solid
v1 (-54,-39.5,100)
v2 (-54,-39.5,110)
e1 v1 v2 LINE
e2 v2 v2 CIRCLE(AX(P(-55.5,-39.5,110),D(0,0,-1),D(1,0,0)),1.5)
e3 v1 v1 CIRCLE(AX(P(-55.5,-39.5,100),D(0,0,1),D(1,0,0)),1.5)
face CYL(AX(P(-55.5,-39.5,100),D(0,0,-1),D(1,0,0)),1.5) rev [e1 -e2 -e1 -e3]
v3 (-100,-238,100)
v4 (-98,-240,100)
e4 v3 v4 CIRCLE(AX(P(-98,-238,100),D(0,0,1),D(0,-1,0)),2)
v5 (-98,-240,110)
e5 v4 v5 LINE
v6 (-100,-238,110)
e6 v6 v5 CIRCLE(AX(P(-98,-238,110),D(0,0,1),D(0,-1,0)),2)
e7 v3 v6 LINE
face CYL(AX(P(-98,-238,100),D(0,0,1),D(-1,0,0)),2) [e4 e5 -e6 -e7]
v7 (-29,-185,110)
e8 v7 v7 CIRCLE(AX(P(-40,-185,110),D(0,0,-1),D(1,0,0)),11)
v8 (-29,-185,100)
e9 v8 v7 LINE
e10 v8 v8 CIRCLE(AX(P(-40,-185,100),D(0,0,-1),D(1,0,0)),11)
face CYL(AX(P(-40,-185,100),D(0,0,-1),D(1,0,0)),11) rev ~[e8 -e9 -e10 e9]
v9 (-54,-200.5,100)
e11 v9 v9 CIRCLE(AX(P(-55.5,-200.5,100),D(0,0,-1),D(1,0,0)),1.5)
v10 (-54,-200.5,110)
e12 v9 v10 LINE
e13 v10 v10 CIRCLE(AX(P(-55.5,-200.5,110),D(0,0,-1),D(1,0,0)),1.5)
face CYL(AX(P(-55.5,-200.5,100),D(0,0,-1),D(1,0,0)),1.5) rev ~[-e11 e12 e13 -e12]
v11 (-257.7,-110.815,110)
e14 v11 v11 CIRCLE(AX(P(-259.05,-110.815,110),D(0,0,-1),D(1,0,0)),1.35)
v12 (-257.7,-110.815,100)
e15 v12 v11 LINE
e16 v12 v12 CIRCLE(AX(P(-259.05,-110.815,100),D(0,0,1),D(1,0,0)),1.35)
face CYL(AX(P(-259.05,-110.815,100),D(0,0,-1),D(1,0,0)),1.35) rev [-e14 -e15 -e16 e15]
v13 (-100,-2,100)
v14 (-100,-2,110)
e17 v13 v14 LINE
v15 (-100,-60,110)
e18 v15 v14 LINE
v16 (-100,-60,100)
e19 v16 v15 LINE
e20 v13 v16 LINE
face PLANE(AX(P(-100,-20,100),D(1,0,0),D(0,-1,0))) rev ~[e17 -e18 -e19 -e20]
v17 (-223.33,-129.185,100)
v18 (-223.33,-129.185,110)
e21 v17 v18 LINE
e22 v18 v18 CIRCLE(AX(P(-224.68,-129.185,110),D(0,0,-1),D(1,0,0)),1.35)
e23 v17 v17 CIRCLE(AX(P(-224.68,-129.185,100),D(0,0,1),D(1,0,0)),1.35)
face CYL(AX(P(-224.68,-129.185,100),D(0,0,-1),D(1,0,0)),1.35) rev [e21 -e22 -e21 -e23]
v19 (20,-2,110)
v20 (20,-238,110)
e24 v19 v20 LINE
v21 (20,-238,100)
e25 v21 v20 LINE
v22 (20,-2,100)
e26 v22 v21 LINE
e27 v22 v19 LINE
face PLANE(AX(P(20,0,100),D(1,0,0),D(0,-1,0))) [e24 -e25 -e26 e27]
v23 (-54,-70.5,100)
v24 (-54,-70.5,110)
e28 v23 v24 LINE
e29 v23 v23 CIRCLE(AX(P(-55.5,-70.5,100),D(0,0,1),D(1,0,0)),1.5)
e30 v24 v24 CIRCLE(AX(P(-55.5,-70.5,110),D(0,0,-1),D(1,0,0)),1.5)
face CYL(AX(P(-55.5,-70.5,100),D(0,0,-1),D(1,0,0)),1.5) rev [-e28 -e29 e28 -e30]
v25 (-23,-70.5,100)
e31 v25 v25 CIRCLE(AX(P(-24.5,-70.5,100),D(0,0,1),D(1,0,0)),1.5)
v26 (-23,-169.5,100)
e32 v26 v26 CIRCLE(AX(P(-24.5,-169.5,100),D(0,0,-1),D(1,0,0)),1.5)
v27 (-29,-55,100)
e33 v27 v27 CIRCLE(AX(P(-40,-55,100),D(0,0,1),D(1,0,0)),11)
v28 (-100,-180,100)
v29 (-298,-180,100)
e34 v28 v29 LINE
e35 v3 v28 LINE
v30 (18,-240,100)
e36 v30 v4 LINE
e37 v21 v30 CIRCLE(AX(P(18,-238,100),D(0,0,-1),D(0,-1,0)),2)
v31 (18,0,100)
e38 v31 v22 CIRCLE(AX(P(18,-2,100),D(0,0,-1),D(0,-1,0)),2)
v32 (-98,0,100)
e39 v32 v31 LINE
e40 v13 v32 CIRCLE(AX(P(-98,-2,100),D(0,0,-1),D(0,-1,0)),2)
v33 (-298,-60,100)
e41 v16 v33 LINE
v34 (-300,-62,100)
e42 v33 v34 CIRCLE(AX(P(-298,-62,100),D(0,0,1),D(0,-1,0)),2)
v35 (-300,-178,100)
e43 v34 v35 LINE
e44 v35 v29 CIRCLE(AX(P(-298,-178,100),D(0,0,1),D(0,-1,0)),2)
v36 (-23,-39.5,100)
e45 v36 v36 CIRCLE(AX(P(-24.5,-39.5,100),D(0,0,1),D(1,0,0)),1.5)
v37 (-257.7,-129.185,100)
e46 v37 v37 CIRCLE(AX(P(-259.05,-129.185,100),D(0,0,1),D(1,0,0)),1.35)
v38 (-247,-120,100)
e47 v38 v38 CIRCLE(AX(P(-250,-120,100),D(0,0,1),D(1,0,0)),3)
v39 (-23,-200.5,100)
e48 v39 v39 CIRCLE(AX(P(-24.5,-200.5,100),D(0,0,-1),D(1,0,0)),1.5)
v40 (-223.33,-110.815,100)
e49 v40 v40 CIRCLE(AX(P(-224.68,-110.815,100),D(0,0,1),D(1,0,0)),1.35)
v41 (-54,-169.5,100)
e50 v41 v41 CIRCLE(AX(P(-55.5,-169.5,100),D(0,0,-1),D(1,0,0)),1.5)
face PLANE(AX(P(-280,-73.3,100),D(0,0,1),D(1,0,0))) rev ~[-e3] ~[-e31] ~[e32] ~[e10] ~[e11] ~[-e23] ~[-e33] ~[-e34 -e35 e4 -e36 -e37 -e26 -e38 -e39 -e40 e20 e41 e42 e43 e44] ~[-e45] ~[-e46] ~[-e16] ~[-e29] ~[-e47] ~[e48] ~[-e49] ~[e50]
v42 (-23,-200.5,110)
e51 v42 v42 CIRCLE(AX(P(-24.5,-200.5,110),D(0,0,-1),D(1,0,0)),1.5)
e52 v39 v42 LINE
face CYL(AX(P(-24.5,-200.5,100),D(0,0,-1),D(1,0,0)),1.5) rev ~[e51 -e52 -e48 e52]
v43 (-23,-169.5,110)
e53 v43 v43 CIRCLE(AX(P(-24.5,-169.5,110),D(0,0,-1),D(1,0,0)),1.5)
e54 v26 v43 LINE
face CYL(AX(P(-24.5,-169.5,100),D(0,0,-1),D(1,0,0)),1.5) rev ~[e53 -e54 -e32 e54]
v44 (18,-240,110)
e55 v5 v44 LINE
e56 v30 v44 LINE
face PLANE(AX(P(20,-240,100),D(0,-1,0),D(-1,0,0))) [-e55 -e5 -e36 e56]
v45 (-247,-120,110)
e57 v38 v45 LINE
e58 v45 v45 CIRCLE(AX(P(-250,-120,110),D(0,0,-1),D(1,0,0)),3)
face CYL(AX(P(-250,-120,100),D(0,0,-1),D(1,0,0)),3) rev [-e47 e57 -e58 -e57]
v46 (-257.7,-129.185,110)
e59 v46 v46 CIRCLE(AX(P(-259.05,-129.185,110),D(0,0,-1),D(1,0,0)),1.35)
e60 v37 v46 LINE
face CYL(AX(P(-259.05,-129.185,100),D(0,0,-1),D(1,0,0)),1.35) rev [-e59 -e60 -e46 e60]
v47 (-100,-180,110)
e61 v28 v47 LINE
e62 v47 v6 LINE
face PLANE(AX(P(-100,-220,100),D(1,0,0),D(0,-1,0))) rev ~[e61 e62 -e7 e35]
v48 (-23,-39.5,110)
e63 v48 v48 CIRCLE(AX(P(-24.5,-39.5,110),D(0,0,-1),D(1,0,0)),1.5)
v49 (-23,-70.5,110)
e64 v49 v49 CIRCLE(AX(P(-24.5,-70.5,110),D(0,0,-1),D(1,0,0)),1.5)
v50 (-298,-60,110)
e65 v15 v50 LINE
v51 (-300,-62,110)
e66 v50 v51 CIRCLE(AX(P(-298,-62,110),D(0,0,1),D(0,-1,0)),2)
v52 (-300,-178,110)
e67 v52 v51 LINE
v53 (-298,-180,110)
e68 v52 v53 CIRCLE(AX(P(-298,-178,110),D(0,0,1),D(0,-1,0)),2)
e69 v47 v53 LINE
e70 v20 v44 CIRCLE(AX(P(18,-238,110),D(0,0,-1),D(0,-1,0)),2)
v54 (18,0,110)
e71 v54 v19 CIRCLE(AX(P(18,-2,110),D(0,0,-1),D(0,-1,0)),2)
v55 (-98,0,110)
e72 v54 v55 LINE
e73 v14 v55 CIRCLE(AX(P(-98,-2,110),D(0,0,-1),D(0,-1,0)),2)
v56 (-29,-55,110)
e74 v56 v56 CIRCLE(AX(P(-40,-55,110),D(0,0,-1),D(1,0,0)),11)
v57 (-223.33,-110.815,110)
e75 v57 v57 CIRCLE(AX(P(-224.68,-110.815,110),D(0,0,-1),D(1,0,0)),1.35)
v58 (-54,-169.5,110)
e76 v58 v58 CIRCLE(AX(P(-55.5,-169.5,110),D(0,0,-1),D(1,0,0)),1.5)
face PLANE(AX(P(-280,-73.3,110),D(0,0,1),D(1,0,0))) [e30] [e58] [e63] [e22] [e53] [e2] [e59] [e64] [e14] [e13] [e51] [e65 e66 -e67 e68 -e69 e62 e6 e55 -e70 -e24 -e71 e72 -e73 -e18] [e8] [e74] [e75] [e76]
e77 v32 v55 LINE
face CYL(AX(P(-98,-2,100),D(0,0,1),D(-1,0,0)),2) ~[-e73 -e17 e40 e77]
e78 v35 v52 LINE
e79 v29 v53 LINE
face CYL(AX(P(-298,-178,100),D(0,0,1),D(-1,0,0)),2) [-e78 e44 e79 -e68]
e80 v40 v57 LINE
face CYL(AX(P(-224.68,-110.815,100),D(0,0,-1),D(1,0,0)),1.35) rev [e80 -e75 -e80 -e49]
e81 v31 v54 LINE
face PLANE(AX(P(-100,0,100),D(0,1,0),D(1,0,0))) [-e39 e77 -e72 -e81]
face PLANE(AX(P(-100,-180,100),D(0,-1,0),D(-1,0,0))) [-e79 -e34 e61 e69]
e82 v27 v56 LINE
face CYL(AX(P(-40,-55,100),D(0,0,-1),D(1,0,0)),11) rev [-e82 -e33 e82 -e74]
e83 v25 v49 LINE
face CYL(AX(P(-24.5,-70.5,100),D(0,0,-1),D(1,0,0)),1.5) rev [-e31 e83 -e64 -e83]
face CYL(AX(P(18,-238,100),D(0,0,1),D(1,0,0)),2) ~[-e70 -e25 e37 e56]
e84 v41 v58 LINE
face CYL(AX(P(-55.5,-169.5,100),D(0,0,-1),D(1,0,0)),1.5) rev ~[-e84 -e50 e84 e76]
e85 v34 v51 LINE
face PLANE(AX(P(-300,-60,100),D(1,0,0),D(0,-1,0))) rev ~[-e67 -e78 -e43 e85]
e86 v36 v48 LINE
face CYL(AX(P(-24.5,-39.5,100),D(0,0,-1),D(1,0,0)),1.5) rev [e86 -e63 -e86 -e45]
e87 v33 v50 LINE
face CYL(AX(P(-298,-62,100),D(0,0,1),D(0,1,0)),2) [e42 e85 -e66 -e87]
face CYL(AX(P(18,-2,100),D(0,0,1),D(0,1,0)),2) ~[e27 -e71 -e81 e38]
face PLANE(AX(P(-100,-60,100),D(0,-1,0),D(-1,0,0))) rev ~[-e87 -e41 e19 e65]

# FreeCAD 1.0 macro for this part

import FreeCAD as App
import Part
import Sketcher
from FreeCAD import Vector


def edges_at(feature, points):
    """Names of the edges that pass closest to the given points."""
    edges = feature.Shape.Edges
    near = lambda p: min(range(len(edges)), key=lambda i: edges[i].distToShape(Part.Vertex(*p))[0])
    return sorted({f"Edge{near(p) + 1}" for p in points})

doc = App.newDocument("Part")
body = doc.addObject("PartDesign::Body", "Body")

# Sketch on XY plane
sketch1 = doc.addObject("Sketcher::SketchObject", "Sketch")
body.addObject(sketch1)
sketch1.AttachmentSupport = (doc.XY_Plane, [""])
sketch1.MapMode = "FlatFace"
sketch1.AttachmentOffset = App.Placement(Vector(0, 0, 100), App.Rotation())
sketch1.addGeometry([
    Part.LineSegment(Vector(-100, -60, 0), Vector(-300, -60, 0)),  # 0
    Part.LineSegment(Vector(-300, -60, 0), Vector(-300, -180, 0)),  # 1
    Part.LineSegment(Vector(-300, -180, 0), Vector(-100, -180, 0)),  # 2
    Part.LineSegment(Vector(-100, -180, 0), Vector(-100, -240, 0)),  # 3
    Part.LineSegment(Vector(-100, -240, 0), Vector(20, -240, 0)),  # 4
    Part.LineSegment(Vector(20, -240, 0), Vector(20, 0, 0)),  # 5
    Part.LineSegment(Vector(20, 0, 0), Vector(-100, 0, 0)),  # 6
    Part.LineSegment(Vector(-100, 0, 0), Vector(-100, -60, 0)),  # 7
], False)
sketch1.addConstraint([
    Sketcher.Constraint("Coincident", 0, 2, 1, 1),
    Sketcher.Constraint("Coincident", 1, 2, 2, 1),
    Sketcher.Constraint("Coincident", 2, 2, 3, 1),
    Sketcher.Constraint("Coincident", 3, 2, 4, 1),
    Sketcher.Constraint("Coincident", 4, 2, 5, 1),
    Sketcher.Constraint("Coincident", 5, 2, 6, 1),
    Sketcher.Constraint("Coincident", 6, 2, 7, 1),
    Sketcher.Constraint("Coincident", 7, 2, 0, 1),
    Sketcher.Constraint("Horizontal", 0),
    Sketcher.Constraint("Vertical", 1),
    Sketcher.Constraint("Horizontal", 2),
    Sketcher.Constraint("Vertical", 3),
    Sketcher.Constraint("Horizontal", 4),
    Sketcher.Constraint("Vertical", 5),
    Sketcher.Constraint("Horizontal", 6),
    Sketcher.Constraint("Vertical", 7),
    Sketcher.Constraint("PointOnObject", 5, 2, -1),
    Sketcher.Constraint("Vertical", 3, 2, 6, 2),
    Sketcher.Constraint("Equal", 6, 1),
    Sketcher.Constraint("Equal", 3, 7),
    Sketcher.Constraint("DistanceX", 0, 2, 0, 1, 200.0),
    Sketcher.Constraint("DistanceX", 4, 1, 4, 2, 120.0),
    Sketcher.Constraint("DistanceY", 3, 2, 3, 1, 60.0),
    Sketcher.Constraint("DistanceX", 0, 2, -1, 1, 300.0),
])
pad1 = doc.addObject("PartDesign::Pad", "Pad")
body.addObject(pad1)
pad1.Profile = sketch1
pad1.Length = 10

# Sketch on YZ plane
sketch2 = doc.addObject("Sketcher::SketchObject", "Sketch001")
body.addObject(sketch2)
sketch2.AttachmentSupport = (doc.YZ_Plane, [""])
sketch2.MapMode = "FlatFace"
sketch2.AttachmentOffset = App.Placement(Vector(0, 0, 20), App.Rotation())
sketch2.addGeometry([
    Part.LineSegment(Vector(-242, 0, 0), Vector(2, 0, 0)),
    Part.LineSegment(Vector(2, 0, 0), Vector(2, 100, 0)),
    Part.LineSegment(Vector(2, 100, 0), Vector(-242, 100, 0)),
    Part.LineSegment(Vector(-242, 100, 0), Vector(-242, 0, 0)),
], False)
sketch2.addConstraint([
    Sketcher.Constraint("Coincident", 0, 2, 1, 1),
    Sketcher.Constraint("Coincident", 1, 2, 2, 1),
    Sketcher.Constraint("Coincident", 2, 2, 3, 1),
    Sketcher.Constraint("Coincident", 3, 2, 0, 1),
    Sketcher.Constraint("Horizontal", 0),
    Sketcher.Constraint("Vertical", 1),
    Sketcher.Constraint("Horizontal", 2),
    Sketcher.Constraint("Vertical", 3),
    Sketcher.Constraint("PointOnObject", 0, 2, -1),
    Sketcher.Constraint("DistanceX", 0, 1, 0, 2, 245.0),
    Sketcher.Constraint("DistanceY", 1, 1, 1, 2, 100.0),
    Sketcher.Constraint("DistanceX", -1, 1, 0, 2, 2.5),
])
pocket1 = doc.addObject("PartDesign::Pocket", "Pocket")
body.addObject(pocket1)
pocket1.Profile = sketch2
pocket1.Type = "ThroughAll"

# Sketch on XY plane
sketch3 = doc.addObject("Sketcher::SketchObject", "Sketch002")
body.addObject(sketch3)
sketch3.AttachmentSupport = (doc.XY_Plane, [""])
sketch3.MapMode = "FlatFace"
sketch3.AttachmentOffset = App.Placement(Vector(0, 0, 100), App.Rotation())
sketch3.addGeometry([
    Part.Circle(Vector(-259.1, -110.8, 0), Vector(0, 0, 1), 1.4),  # 0
    Part.Circle(Vector(-224.7, -110.8, 0), Vector(0, 0, 1), 1.4),  # 1
    Part.Circle(Vector(-224.7, -129.2, 0), Vector(0, 0, 1), 1.4),  # 2
    Part.Circle(Vector(-259.1, -129.2, 0), Vector(0, 0, 1), 1.4),  # 3
    Part.Circle(Vector(-250, -120, 0), Vector(0, 0, 1), 3),  # 4
    Part.Circle(Vector(-55.5, -39.5, 0), Vector(0, 0, 1), 1.5),  # 5
    Part.Circle(Vector(-55.5, -70.5, 0), Vector(0, 0, 1), 1.5),  # 6
    Part.Circle(Vector(-24.5, -70.5, 0), Vector(0, 0, 1), 1.5),  # 7
    Part.Circle(Vector(-24.5, -39.5, 0), Vector(0, 0, 1), 1.5),  # 8
    Part.Circle(Vector(-40, -55, 0), Vector(0, 0, 1), 11),  # 9
], False)
sketch3.addConstraint([
    Sketcher.Constraint("Equal", 0, 1),
    Sketcher.Constraint("Equal", 1, 2),
    Sketcher.Constraint("Equal", 2, 3),
    Sketcher.Constraint("Equal", 5, 6),
    Sketcher.Constraint("Equal", 6, 7),
    Sketcher.Constraint("Equal", 7, 8),
    Sketcher.Constraint("Horizontal", 0, 3, 1, 3),
    Sketcher.Constraint("Horizontal", 2, 3, 3, 3),
    Sketcher.Constraint("Horizontal", 6, 3, 7, 3),
    Sketcher.Constraint("Horizontal", 5, 3, 8, 3),
    Sketcher.Constraint("Vertical", 1, 3, 2, 3),
    Sketcher.Constraint("Vertical", 0, 3, 3, 3),
    Sketcher.Constraint("Vertical", 5, 3, 6, 3),
    Sketcher.Constraint("Vertical", 7, 3, 8, 3),
    Sketcher.Constraint("Diameter", 4, 6.0),
    Sketcher.Constraint("Diameter", 5, 3.0),
    Sketcher.Constraint("Diameter", 9, 22.0),
    Sketcher.Constraint("Diameter", 0, 2.7),
    Sketcher.Constraint("DistanceY", 9, 3, -1, 1, 55.0),
    Sketcher.Constraint("DistanceY", 6, 3, 5, 3, 31.0),
    Sketcher.Constraint("DistanceX", 6, 3, 7, 3, 31.0),
    Sketcher.Constraint("DistanceX", 5, 3, 9, 3, 15.5),
    Sketcher.Constraint("DistanceY", 9, 3, 5, 3, 15.5),
    Sketcher.Constraint("DistanceX", 0, 3, 1, 3, 34.37),
    Sketcher.Constraint("DistanceY", 2, 3, 1, 3, 18.37),
    Sketcher.Constraint("DistanceX", 0, 3, 4, 3, 9.05),
    Sketcher.Constraint("DistanceX", 4, 3, -1, 1, 250.0),
    Sketcher.Constraint("DistanceY", 4, 3, -1, 1, 120.0),
    Sketcher.Constraint("DistanceX", 9, 3, -1, 1, 40.0),
    Sketcher.Constraint("DistanceY", 4, 3, 0, 3, 9.185),
])
pocket2 = doc.addObject("PartDesign::Pocket", "Pocket001")
body.addObject(pocket2)
pocket2.Profile = sketch3
pocket2.Type = "ThroughAll"
pocket2.Reversed = True
doc.recompute()

datumplane = doc.addObject("PartDesign::Plane", "DatumPlane")
body.addObject(datumplane)
datumplane.AttachmentSupport = (doc.XZ_Plane, [""])
datumplane.MapMode = "FlatFace"
datumplane.AttachmentOffset = App.Placement(Vector(0, 0, 120), App.Rotation())
mirrored = doc.addObject("PartDesign::Mirrored", "Mirrored")
body.addObject(mirrored)
mirrored.Originals = [pocket2]
mirrored.MirrorPlane = (datumplane, [""])
body.Tip = mirrored
doc.recompute()

fillet = doc.addObject("PartDesign::Fillet", "Fillet")
body.addObject(fillet)
fillet.Base = (mirrored, edges_at(mirrored, [
    (20, -240, 105),
    (20, 0, 105),
    (-100, 0, 105),
    (-300, -60, 105),
    (-300, -180, 105),
    (-100, -240, 105),
]))
fillet.Radius = 2

doc.recompute()
